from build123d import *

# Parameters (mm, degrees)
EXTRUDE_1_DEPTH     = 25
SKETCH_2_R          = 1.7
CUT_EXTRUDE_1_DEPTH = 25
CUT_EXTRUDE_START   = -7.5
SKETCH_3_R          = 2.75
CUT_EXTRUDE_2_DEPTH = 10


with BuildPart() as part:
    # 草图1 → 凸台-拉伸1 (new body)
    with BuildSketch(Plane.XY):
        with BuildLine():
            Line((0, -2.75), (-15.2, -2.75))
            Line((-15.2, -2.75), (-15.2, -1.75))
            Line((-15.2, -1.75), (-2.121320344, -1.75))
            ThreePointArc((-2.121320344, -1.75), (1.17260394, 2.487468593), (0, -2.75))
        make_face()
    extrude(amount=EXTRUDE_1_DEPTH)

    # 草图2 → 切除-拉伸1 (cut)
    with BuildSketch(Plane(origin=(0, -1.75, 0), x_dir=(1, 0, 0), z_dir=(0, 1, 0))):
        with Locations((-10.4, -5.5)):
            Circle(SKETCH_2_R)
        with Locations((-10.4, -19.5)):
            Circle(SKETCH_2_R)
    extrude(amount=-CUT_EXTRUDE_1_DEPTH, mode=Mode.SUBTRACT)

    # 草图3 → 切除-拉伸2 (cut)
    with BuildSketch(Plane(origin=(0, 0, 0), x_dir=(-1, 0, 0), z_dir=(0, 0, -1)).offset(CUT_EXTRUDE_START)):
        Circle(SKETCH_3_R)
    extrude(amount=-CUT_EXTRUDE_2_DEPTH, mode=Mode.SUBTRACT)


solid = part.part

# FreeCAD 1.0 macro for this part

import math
import FreeCAD as App
import Part
import Sketcher
from FreeCAD import Vector

doc = App.newDocument("Part")
body = doc.addObject("PartDesign::Body", "Body")

# Sketch on XY plane
sketch1 = doc.addObject("Sketcher::SketchObject", "Sketch")
body.addObject(sketch1)
sketch1.AttachmentSupport = (doc.XY_Plane, [""])
sketch1.MapMode = "FlatFace"
sketch1.addGeometry([
    Part.LineSegment(Vector(-15.2, -2.8, 0), Vector(0, -2.8, 0)),
    Part.ArcOfCircle(Part.Circle(Vector(0, 0, 0), Vector(0, 0, 1), 2.8), math.radians(-90), math.radians(220)),
    Part.LineSegment(Vector(-2.1, -1.8, 0), Vector(-15.2, -1.8, 0)),
    Part.LineSegment(Vector(-15.2, -1.8, 0), Vector(-15.2, -2.8, 0)),
], False)
sketch1.addConstraint([
    Sketcher.Constraint("Tangent", 0, 2, 1, 1),
    Sketcher.Constraint("Coincident", 1, 2, 2, 1),
    Sketcher.Constraint("Coincident", 2, 2, 3, 1),
    Sketcher.Constraint("Coincident", 3, 2, 0, 1),
    Sketcher.Constraint("Horizontal", 0),
    Sketcher.Constraint("Horizontal", 2),
    Sketcher.Constraint("Vertical", 3),
    Sketcher.Constraint("Coincident", 1, 3, -1, 1),
    Sketcher.Constraint("DistanceY", 3, 2, 3, 1, 1.0),
    Sketcher.Constraint("Radius", 1, 2.75),
    Sketcher.Constraint("DistanceX", 0, 1, 0, 2, 15.2),
])
pad1 = doc.addObject("PartDesign::Pad", "Pad")
body.addObject(pad1)
pad1.Profile = sketch1
pad1.Length = 25

# Sketch on XZ plane
sketch2 = doc.addObject("Sketcher::SketchObject", "Sketch001")
body.addObject(sketch2)
sketch2.AttachmentSupport = (doc.XZ_Plane, [""])
sketch2.MapMode = "FlatFace"
sketch2.AttachmentOffset = App.Placement(Vector(0, 0, 1.75), App.Rotation())
sketch2.addGeometry([
    Part.Circle(Vector(-10.4, 5.5, 0), Vector(0, 0, 1), 1.7),
    Part.Circle(Vector(-10.4, 19.5, 0), Vector(0, 0, 1), 1.7),
], False)
sketch2.addConstraint([
    Sketcher.Constraint("Equal", 0, 1),
    Sketcher.Constraint("Vertical", 0, 3, 1, 3),
    Sketcher.Constraint("Diameter", 0, 3.4),
    Sketcher.Constraint("DistanceY", 0, 3, 1, 3, 14.0),
    Sketcher.Constraint("DistanceX", 0, 3, -1, 1, 10.4),
    Sketcher.Constraint("DistanceY", -1, 1, 0, 3, 5.5),
])
pocket1 = doc.addObject("PartDesign::Pocket", "Pocket")
body.addObject(pocket1)
pocket1.Profile = sketch2
pocket1.Length = 25
pocket1.Reversed = True

# Sketch on XY plane
sketch3 = doc.addObject("Sketcher::SketchObject", "Sketch002")
body.addObject(sketch3)
sketch3.AttachmentSupport = (doc.XY_Plane, [""])
sketch3.MapMode = "FlatFace"
sketch3.AttachmentOffset = App.Placement(Vector(0, 0, 7.5), App.Rotation())
sketch3.addGeometry(Part.Circle(Vector(0, 0, 0), Vector(0, 0, 1), 2.8), False)
sketch3.addConstraint([
    Sketcher.Constraint("Coincident", 0, 3, -1, 1),
    Sketcher.Constraint("Diameter", 0, 5.5),
])
pocket2 = doc.addObject("PartDesign::Pocket", "Pocket001")
body.addObject(pocket2)
pocket2.Profile = sketch3
pocket2.Length = 10
pocket2.Reversed = True

doc.recompute()
